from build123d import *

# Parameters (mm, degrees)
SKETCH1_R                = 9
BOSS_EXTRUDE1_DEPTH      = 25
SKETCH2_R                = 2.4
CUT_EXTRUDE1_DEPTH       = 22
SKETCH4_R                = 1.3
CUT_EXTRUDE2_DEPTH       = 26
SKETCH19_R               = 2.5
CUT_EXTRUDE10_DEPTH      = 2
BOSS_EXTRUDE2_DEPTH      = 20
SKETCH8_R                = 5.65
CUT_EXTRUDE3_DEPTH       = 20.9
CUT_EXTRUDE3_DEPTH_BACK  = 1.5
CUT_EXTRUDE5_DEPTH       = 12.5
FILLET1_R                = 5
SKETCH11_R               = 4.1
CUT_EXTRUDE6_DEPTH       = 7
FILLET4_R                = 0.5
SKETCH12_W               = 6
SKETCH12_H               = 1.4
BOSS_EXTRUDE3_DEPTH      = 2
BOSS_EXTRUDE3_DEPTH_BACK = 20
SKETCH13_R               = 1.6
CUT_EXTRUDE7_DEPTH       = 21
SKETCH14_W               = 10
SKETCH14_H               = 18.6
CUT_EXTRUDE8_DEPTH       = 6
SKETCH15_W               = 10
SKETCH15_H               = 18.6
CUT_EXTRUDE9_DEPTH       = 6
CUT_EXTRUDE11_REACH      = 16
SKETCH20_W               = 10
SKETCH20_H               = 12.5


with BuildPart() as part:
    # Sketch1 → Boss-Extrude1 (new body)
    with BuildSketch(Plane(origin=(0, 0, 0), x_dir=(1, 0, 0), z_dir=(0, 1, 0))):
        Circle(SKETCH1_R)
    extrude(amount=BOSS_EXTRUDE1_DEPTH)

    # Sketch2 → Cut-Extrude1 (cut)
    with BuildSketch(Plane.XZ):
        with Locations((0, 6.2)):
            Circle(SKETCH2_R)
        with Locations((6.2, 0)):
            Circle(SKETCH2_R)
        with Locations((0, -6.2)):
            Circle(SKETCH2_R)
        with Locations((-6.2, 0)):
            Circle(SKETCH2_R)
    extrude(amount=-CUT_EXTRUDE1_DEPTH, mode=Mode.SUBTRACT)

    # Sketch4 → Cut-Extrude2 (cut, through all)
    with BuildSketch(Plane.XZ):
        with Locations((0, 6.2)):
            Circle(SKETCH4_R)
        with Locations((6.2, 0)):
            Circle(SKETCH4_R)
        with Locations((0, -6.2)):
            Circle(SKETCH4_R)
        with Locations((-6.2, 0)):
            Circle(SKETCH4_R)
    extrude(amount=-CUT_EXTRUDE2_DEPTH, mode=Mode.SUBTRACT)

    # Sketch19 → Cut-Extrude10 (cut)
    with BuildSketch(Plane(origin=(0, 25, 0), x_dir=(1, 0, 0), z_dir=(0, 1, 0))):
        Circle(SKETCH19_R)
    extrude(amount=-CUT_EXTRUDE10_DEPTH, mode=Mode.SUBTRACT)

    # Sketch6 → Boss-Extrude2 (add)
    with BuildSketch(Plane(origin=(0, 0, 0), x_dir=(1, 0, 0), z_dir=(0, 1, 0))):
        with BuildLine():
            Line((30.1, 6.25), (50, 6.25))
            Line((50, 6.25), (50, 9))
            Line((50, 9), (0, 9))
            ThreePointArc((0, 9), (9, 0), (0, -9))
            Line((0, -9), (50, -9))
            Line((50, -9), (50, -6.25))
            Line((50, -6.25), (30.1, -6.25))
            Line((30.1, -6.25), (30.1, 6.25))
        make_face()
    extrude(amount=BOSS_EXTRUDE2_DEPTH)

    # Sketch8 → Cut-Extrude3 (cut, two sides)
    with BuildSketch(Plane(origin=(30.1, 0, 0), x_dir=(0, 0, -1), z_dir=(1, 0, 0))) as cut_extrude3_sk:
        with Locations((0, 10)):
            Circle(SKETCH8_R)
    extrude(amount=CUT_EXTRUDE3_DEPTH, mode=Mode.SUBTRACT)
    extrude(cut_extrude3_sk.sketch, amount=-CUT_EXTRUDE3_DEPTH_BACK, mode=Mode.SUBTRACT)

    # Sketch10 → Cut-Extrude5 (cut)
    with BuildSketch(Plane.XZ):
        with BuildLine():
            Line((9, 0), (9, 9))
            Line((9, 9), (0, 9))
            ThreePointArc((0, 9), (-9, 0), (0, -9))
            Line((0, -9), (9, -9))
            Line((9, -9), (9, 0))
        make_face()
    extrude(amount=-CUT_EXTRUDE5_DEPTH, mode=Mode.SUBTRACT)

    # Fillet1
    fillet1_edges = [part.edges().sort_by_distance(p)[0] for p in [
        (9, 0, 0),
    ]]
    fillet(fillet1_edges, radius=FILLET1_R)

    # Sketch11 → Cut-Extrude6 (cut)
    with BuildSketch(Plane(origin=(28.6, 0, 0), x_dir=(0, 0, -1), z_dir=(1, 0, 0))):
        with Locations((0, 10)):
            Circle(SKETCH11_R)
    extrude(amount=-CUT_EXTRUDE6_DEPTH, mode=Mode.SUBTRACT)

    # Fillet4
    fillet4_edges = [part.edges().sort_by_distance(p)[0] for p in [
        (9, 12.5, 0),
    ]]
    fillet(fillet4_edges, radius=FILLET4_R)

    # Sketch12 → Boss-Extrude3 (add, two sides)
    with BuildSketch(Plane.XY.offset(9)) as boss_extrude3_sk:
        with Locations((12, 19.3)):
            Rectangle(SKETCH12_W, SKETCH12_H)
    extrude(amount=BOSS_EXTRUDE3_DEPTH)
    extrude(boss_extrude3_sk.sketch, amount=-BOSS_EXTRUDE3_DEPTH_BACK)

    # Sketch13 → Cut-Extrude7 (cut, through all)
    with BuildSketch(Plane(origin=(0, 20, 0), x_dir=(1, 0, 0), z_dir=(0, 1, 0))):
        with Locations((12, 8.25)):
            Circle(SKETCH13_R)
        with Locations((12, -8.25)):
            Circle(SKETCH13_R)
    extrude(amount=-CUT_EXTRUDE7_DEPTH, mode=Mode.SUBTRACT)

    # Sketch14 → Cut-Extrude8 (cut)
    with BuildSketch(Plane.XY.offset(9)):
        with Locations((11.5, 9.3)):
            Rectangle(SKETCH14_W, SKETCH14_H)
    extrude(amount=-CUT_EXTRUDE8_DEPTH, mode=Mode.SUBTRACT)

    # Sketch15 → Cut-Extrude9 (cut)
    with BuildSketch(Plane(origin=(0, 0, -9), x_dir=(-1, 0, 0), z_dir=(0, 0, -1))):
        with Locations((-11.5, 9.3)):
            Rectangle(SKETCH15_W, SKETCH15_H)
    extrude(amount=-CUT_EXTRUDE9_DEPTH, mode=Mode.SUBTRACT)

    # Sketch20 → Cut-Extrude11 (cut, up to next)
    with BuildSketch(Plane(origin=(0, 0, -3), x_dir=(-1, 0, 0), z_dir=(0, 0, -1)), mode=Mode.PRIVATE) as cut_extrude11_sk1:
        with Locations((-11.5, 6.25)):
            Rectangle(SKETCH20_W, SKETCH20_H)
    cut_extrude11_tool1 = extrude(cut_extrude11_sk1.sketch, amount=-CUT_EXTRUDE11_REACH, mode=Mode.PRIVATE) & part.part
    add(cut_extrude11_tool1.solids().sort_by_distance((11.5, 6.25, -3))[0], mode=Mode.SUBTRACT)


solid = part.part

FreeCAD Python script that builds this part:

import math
import FreeCAD as App
import Part
import Sketcher
Q = App.Units.Quantity


def edges_at(feature, points):
    """Names of the edges that pass closest to the given points."""
    edges = feature.Shape.Edges
    near = lambda p: min(range(len(edges)), key=lambda i: edges[i].distToShape(Part.Vertex(*p))[0])
    return sorted({f"Edge{near(p) + 1}" for p in points})


def add_polygon(sketch, points):
    """Adds a closed chain of lines whose ends are joined by coincident constraints."""
    first, n = sketch.GeometryCount, len(points)
    for a, b in zip(points, points[1:] + points[:1]):
        sketch.addGeometry(Part.LineSegment(App.Vector(*a, 0), App.Vector(*b, 0)), False)
    for i in range(n):
        sketch.addConstraint(Sketcher.Constraint("Coincident", first + i, 2, first + (i + 1) % n, 1))

doc = App.newDocument("Part")
body = doc.addObject("PartDesign::Body", "Body")

sketch1 = body.newObject("Sketcher::SketchObject", "Sketch")
sketch1.AttachmentSupport = (doc.getObject("XZ_Plane"), [""])
sketch1.MapMode = "FlatFace"
sketch1.addGeometry(Part.Circle(App.Vector(0, 0, 0), App.Vector(0, 0, 1), 9), False)
sketch1.addConstraint(Sketcher.Constraint("Coincident", 0, 3, -1, 1))
sketch1.addConstraint(Sketcher.Constraint("Diameter", 0, Q("18 mm")))
pad1 = body.newObject("PartDesign::Pad", "Pad")
pad1.Profile = sketch1
pad1.Length = 25
pad1.Reversed = True

sketch2 = body.newObject("Sketcher::SketchObject", "Sketch001")
sketch2.AttachmentSupport = (doc.getObject("XZ_Plane"), [""])
sketch2.MapMode = "FlatFace"
sketch2.addGeometry(Part.Circle(App.Vector(0, 6.2, 0), App.Vector(0, 0, 1), 2.4), False)
sketch2.addGeometry(Part.Circle(App.Vector(6.2, 0, 0), App.Vector(0, 0, 1), 2.4), False)
sketch2.addGeometry(Part.Circle(App.Vector(0, -6.2, 0), App.Vector(0, 0, 1), 2.4), False)
sketch2.addGeometry(Part.Circle(App.Vector(-6.2, 0, 0), App.Vector(0, 0, 1), 2.4), False)
sketch2.addConstraint(Sketcher.Constraint("Equal", 0, 1))
sketch2.addConstraint(Sketcher.Constraint("Equal", 1, 2))
sketch2.addConstraint(Sketcher.Constraint("Equal", 2, 3))
sketch2.addConstraint(Sketcher.Constraint("Symmetric", 0, 3, 2, 3, -1, 1))
sketch2.addConstraint(Sketcher.Constraint("Symmetric", 1, 3, 3, 3, -1, 1))
sketch2.addConstraint(Sketcher.Constraint("PointOnObject", 0, 3, -2))
sketch2.addConstraint(Sketcher.Constraint("PointOnObject", 1, 3, -1))
sketch2.addConstraint(Sketcher.Constraint("Diameter", 0, Q("4.8 mm")))
sketch2.addConstraint(Sketcher.Constraint("DistanceY", -1, 1, 0, 3, Q("6.2 mm")))
sketch2.addConstraint(Sketcher.Constraint("DistanceX", -1, 1, 1, 3, Q("6.2 mm")))
pocket1 = body.newObject("PartDesign::Pocket", "Pocket")
pocket1.Profile = sketch2
pocket1.Length = 22

sketch3 = body.newObject("Sketcher::SketchObject", "Sketch002")
sketch3.AttachmentSupport = (doc.getObject("XZ_Plane"), [""])
sketch3.MapMode = "FlatFace"
sketch3.addGeometry(Part.Circle(App.Vector(0, 6.2, 0), App.Vector(0, 0, 1), 1.3), False)
sketch3.addGeometry(Part.Circle(App.Vector(6.2, 0, 0), App.Vector(0, 0, 1), 1.3), False)
sketch3.addGeometry(Part.Circle(App.Vector(0, -6.2, 0), App.Vector(0, 0, 1), 1.3), False)
sketch3.addGeometry(Part.Circle(App.Vector(-6.2, 0, 0), App.Vector(0, 0, 1), 1.3), False)
sketch3.addConstraint(Sketcher.Constraint("Equal", 0, 1))
sketch3.addConstraint(Sketcher.Constraint("Equal", 1, 2))
sketch3.addConstraint(Sketcher.Constraint("Equal", 2, 3))
sketch3.addConstraint(Sketcher.Constraint("Symmetric", 0, 3, 2, 3, -1, 1))
sketch3.addConstraint(Sketcher.Constraint("Symmetric", 1, 3, 3, 3, -1, 1))
sketch3.addConstraint(Sketcher.Constraint("PointOnObject", 0, 3, -2))
sketch3.addConstraint(Sketcher.Constraint("PointOnObject", 1, 3, -1))
sketch3.addConstraint(Sketcher.Constraint("Diameter", 0, Q("2.6 mm")))
sketch3.addConstraint(Sketcher.Constraint("DistanceY", -1, 1, 0, 3, Q("6.2 mm")))
sketch3.addConstraint(Sketcher.Constraint("DistanceX", -1, 1, 1, 3, Q("6.2 mm")))
pocket2 = body.newObject("PartDesign::Pocket", "Pocket001")
pocket2.Profile = sketch3
pocket2.Type = "ThroughAll"

sketch4 = body.newObject("Sketcher::SketchObject", "Sketch003")
sketch4.AttachmentSupport = (doc.getObject("XZ_Plane"), [""])
sketch4.MapMode = "FlatFace"
sketch4.AttachmentOffset = App.Placement(App.Vector(0, 0, -25), App.Rotation())
sketch4.addGeometry(Part.Circle(App.Vector(0, 0, 0), App.Vector(0, 0, 1), 2.5), False)
sketch4.addConstraint(Sketcher.Constraint("Coincident", 0, 3, -1, 1))
sketch4.addConstraint(Sketcher.Constraint("Diameter", 0, Q("5 mm")))
pocket3 = body.newObject("PartDesign::Pocket", "Pocket002")
pocket3.Profile = sketch4
pocket3.Length = 2
pocket3.Reversed = True

sketch5 = body.newObject("Sketcher::SketchObject", "Sketch004")
sketch5.AttachmentSupport = (doc.getObject("XZ_Plane"), [""])
sketch5.MapMode = "FlatFace"
sketch5.addGeometry(Part.LineSegment(App.Vector(30.1, -6.25, 0), App.Vector(50, -6.25, 0)), False)
sketch5.addGeometry(Part.LineSegment(App.Vector(50, -6.25, 0), App.Vector(50, -9, 0)), False)
sketch5.addGeometry(Part.LineSegment(App.Vector(50, -9, 0), App.Vector(0, -9, 0)), False)
sketch5.addGeometry(Part.ArcOfCircle(Part.Circle(App.Vector(0, 0, 0), App.Vector(0, 0, 1), 9), math.radians(-90), math.radians(90)), False)
sketch5.addGeometry(Part.LineSegment(App.Vector(0, 9, 0), App.Vector(50, 9, 0)), False)
sketch5.addGeometry(Part.LineSegment(App.Vector(50, 9, 0), App.Vector(50, 6.25, 0)), False)
sketch5.addGeometry(Part.LineSegment(App.Vector(50, 6.25, 0), App.Vector(30.1, 6.25, 0)), False)
sketch5.addGeometry(Part.LineSegment(App.Vector(30.1, 6.25, 0), App.Vector(30.1, -6.25, 0)), False)
sketch5.addConstraint(Sketcher.Constraint("Coincident", 0, 2, 1, 1))
sketch5.addConstraint(Sketcher.Constraint("Coincident", 1, 2, 2, 1))
sketch5.addConstraint(Sketcher.Constraint("Tangent", 2, 2, 3, 1))
sketch5.addConstraint(Sketcher.Constraint("Tangent", 3, 2, 4, 1))
sketch5.addConstraint(Sketcher.Constraint("Coincident", 4, 2, 5, 1))
sketch5.addConstraint(Sketcher.Constraint("Coincident", 5, 2, 6, 1))
sketch5.addConstraint(Sketcher.Constraint("Coincident", 6, 2, 7, 1))
sketch5.addConstraint(Sketcher.Constraint("Coincident", 7, 2, 0, 1))
sketch5.addConstraint(Sketcher.Constraint("Horizontal", 0))
sketch5.addConstraint(Sketcher.Constraint("Vertical", 1))
sketch5.addConstraint(Sketcher.Constraint("Horizontal", 2))
sketch5.addConstraint(Sketcher.Constraint("Horizontal", 4))
sketch5.addConstraint(Sketcher.Constraint("Vertical", 5))
sketch5.addConstraint(Sketcher.Constraint("Horizontal", 6))
sketch5.addConstraint(Sketcher.Constraint("Vertical", 7))
sketch5.addConstraint(Sketcher.Constraint("Coincident", 3, 3, -1, 1))
sketch5.addConstraint(Sketcher.Constraint("Symmetric", 0, 2, 5, 2, -1))
sketch5.addConstraint(Sketcher.Constraint("Radius", 3, Q("9 mm")))
sketch5.addConstraint(Sketcher.Constraint("DistanceX", 2, 2, 2, 1, Q("50 mm")))
sketch5.addConstraint(Sketcher.Constraint("DistanceX", 0, 1, 0, 2, Q("19.9 mm")))
sketch5.addConstraint(Sketcher.Constraint("DistanceY", 7, 2, 7, 1, Q("12.5 mm")))
pad2 = body.newObject("PartDesign::Pad", "Pad001")
pad2.Profile = sketch5
pad2.Length = 20
pad2.Reversed = True

sketch6 = body.newObject("Sketcher::SketchObject", "Sketch005")
sketch6.AttachmentSupport = (doc.getObject("YZ_Plane"), [""])
sketch6.MapMode = "FlatFace"
sketch6.AttachmentOffset = App.Placement(App.Vector(0, 0, 30.1), App.Rotation())
sketch6.addGeometry(Part.Circle(App.Vector(10, 0, 0), App.Vector(0, 0, 1), 5.65), False)
sketch6.addConstraint(Sketcher.Constraint("PointOnObject", 0, 3, -1))
sketch6.addConstraint(Sketcher.Constraint("Diameter", 0, Q("11.3 mm")))
sketch6.addConstraint(Sketcher.Constraint("DistanceX", -1, 1, 0, 3, Q("10 mm")))
pocket4 = body.newObject("PartDesign::Pocket", "Pocket003")
pocket4.Profile = sketch6
pocket4.Type = "TwoLengths"
pocket4.Length = 20.9
pocket4.Length2 = 1.5
pocket4.Reversed = True

sketch7 = body.newObject("Sketcher::SketchObject", "Sketch006")
sketch7.AttachmentSupport = (doc.getObject("XZ_Plane"), [""])
sketch7.MapMode = "FlatFace"
sketch7.addGeometry(Part.LineSegment(App.Vector(9, 9, 0), App.Vector(0, 9, 0)), False)
sketch7.addGeometry(Part.ArcOfCircle(Part.Circle(App.Vector(0, 0, 0), App.Vector(0, 0, 1), 9), math.radians(90), math.radians(270)), False)
sketch7.addGeometry(Part.LineSegment(App.Vector(0, -9, 0), App.Vector(9, -9, 0)), False)
sketch7.addGeometry(Part.LineSegment(App.Vector(9, -9, 0), App.Vector(9, 9, 0)), False)
sketch7.addConstraint(Sketcher.Constraint("Tangent", 0, 2, 1, 1))
sketch7.addConstraint(Sketcher.Constraint("Tangent", 1, 2, 2, 1))
sketch7.addConstraint(Sketcher.Constraint("Coincident", 2, 2, 3, 1))
sketch7.addConstraint(Sketcher.Constraint("Coincident", 3, 2, 0, 1))
sketch7.addConstraint(Sketcher.Constraint("Horizontal", 0))
sketch7.addConstraint(Sketcher.Constraint("Horizontal", 2))
sketch7.addConstraint(Sketcher.Constraint("Vertical", 3))
sketch7.addConstraint(Sketcher.Constraint("Coincident", 1, 3, -1, 1))
sketch7.addConstraint(Sketcher.Constraint("Radius", 1, Q("9 mm")))
sketch7.addConstraint(Sketcher.Constraint("DistanceX", 0, 2, 0, 1, Q("9 mm")))
pocket5 = body.newObject("PartDesign::Pocket", "Pocket004")
pocket5.Profile = sketch7
pocket5.Length = 12.5
doc.recompute()

fillet = body.newObject("PartDesign::Fillet", "Fillet")
fillet.Base = (pocket5, edges_at(pocket5, [(9, 0, 0)]))
fillet.Radius = 5

sketch8 = body.newObject("Sketcher::SketchObject", "Sketch007")
sketch8.AttachmentSupport = (doc.getObject("YZ_Plane"), [""])
sketch8.MapMode = "FlatFace"
sketch8.AttachmentOffset = App.Placement(App.Vector(0, 0, 28.6), App.Rotation())
sketch8.addGeometry(Part.Circle(App.Vector(10, 0, 0), App.Vector(0, 0, 1), 4.1), False)
sketch8.addConstraint(Sketcher.Constraint("PointOnObject", 0, 3, -1))
sketch8.addConstraint(Sketcher.Constraint("Diameter", 0, Q("8.2 mm")))
sketch8.addConstraint(Sketcher.Constraint("DistanceX", -1, 1, 0, 3, Q("10 mm")))
pocket6 = body.newObject("PartDesign::Pocket", "Pocket005")
pocket6.Profile = sketch8
pocket6.Length = 7
doc.recompute()

fillet2 = body.newObject("PartDesign::Fillet", "Fillet001")
fillet2.Base = (pocket6, edges_at(pocket6, [(9, 12.5, 0)]))
fillet2.Radius = 0.5

sketch9 = body.newObject("Sketcher::SketchObject", "Sketch008")
sketch9.AttachmentSupport = (doc.getObject("XY_Plane"), [""])
sketch9.MapMode = "FlatFace"
sketch9.AttachmentOffset = App.Placement(App.Vector(0, 0, 9), App.Rotation())
add_polygon(sketch9, [(9, 20), (9, 18.6), (15, 18.6), (15, 20)])
sketch9.addConstraint(Sketcher.Constraint("Vertical", 0))
sketch9.addConstraint(Sketcher.Constraint("Horizontal", 1))
sketch9.addConstraint(Sketcher.Constraint("Vertical", 2))
sketch9.addConstraint(Sketcher.Constraint("Horizontal", 3))
sketch9.addConstraint(Sketcher.Constraint("DistanceX", 1, 1, 1, 2, Q("6 mm")))
sketch9.addConstraint(Sketcher.Constraint("DistanceY", 0, 2, 0, 1, Q("1.4 mm")))
sketch9.addConstraint(Sketcher.Constraint("DistanceX", -1, 1, 0, 2, Q("9 mm")))
sketch9.addConstraint(Sketcher.Constraint("DistanceY", -1, 1, 2, 2, Q("20 mm")))
pad3 = body.newObject("PartDesign::Pad", "Pad002")
pad3.Profile = sketch9
pad3.Type = "TwoLengths"
pad3.Length = 2
pad3.Length2 = 20

sketch10 = body.newObject("Sketcher::SketchObject", "Sketch009")
sketch10.AttachmentSupport = (doc.getObject("XZ_Plane"), [""])
sketch10.MapMode = "FlatFace"
sketch10.AttachmentOffset = App.Placement(App.Vector(0, 0, -20), App.Rotation())
sketch10.addGeometry(Part.Circle(App.Vector(12, -8.25, 0), App.Vector(0, 0, 1), 1.6), False)
sketch10.addGeometry(Part.Circle(App.Vector(12, 8.25, 0), App.Vector(0, 0, 1), 1.6), False)
sketch10.addConstraint(Sketcher.Constraint("Equal", 0, 1))
sketch10.addConstraint(Sketcher.Constraint("Symmetric", 0, 3, 1, 3, -1))
sketch10.addConstraint(Sketcher.Constraint("Diameter", 0, Q("3.2 mm")))
sketch10.addConstraint(Sketcher.Constraint("DistanceX", -1, 1, 0, 3, Q("12 mm")))
sketch10.addConstraint(Sketcher.Constraint("DistanceY", 0, 3, 1, 3, Q("16.5 mm")))
pocket7 = body.newObject("PartDesign::Pocket", "Pocket006")
pocket7.Profile = sketch10
pocket7.Type = "ThroughAll"
pocket7.Reversed = True

sketch11 = body.newObject("Sketcher::SketchObject", "Sketch010")
sketch11.AttachmentSupport = (doc.getObject("XY_Plane"), [""])
sketch11.MapMode = "FlatFace"
sketch11.AttachmentOffset = App.Placement(App.Vector(0, 0, 9), App.Rotation())
add_polygon(sketch11, [(6.5, 18.6), (6.5, 0), (16.5, 0), (16.5, 18.6)])
sketch11.addConstraint(Sketcher.Constraint("Vertical", 0))
sketch11.addConstraint(Sketcher.Constraint("Horizontal", 1))
sketch11.addConstraint(Sketcher.Constraint("Vertical", 2))
sketch11.addConstraint(Sketcher.Constraint("Horizontal", 3))
sketch11.addConstraint(Sketcher.Constraint("PointOnObject", 0, 2, -1))
sketch11.addConstraint(Sketcher.Constraint("DistanceX", 1, 1, 1, 2, Q("10 mm")))
sketch11.addConstraint(Sketcher.Constraint("DistanceY", 0, 2, 0, 1, Q("18.6 mm")))
sketch11.addConstraint(Sketcher.Constraint("DistanceX", -1, 1, 0, 2, Q("6.5 mm")))
pocket8 = body.newObject("PartDesign::Pocket", "Pocket007")
pocket8.Profile = sketch11
pocket8.Length = 6

sketch12 = body.newObject("Sketcher::SketchObject", "Sketch011")
sketch12.AttachmentSupport = (doc.getObject("XY_Plane"), [""])
sketch12.MapMode = "FlatFace"
sketch12.AttachmentOffset = App.Placement(App.Vector(0, 0, -9), App.Rotation())
add_polygon(sketch12, [(16.5, 18.6), (16.5, 0), (6.5, 0), (6.5, 18.6)])
sketch12.addConstraint(Sketcher.Constraint("Vertical", 0))
sketch12.addConstraint(Sketcher.Constraint("Horizontal", 1))
sketch12.addConstraint(Sketcher.Constraint("Vertical", 2))
sketch12.addConstraint(Sketcher.Constraint("Horizontal", 3))
sketch12.addConstraint(Sketcher.Constraint("PointOnObject", 0, 2, -1))
sketch12.addConstraint(Sketcher.Constraint("DistanceX", 1, 2, 1, 1, Q("10 mm")))
sketch12.addConstraint(Sketcher.Constraint("DistanceY", 0, 2, 0, 1, Q("18.6 mm")))
sketch12.addConstraint(Sketcher.Constraint("DistanceX", -1, 1, 0, 2, Q("16.5 mm")))
pocket9 = body.newObject("PartDesign::Pocket", "Pocket008")
pocket9.Profile = sketch12
pocket9.Length = 6
pocket9.Reversed = True

sketch13 = body.newObject("Sketcher::SketchObject", "Sketch012")
sketch13.AttachmentSupport = (doc.getObject("XY_Plane"), [""])
sketch13.MapMode = "FlatFace"
sketch13.AttachmentOffset = App.Placement(App.Vector(0, 0, -3), App.Rotation())
add_polygon(sketch13, [(16.5, 12.5), (16.5, 0), (6.5, 0), (6.5, 12.5)])
sketch13.addConstraint(Sketcher.Constraint("Vertical", 0))
sketch13.addConstraint(Sketcher.Constraint("Horizontal", 1))
sketch13.addConstraint(Sketcher.Constraint("Vertical", 2))
sketch13.addConstraint(Sketcher.Constraint("Horizontal", 3))
sketch13.addConstraint(Sketcher.Constraint("PointOnObject", 0, 2, -1))
sketch13.addConstraint(Sketcher.Constraint("DistanceX", 1, 2, 1, 1, Q("10 mm")))
sketch13.addConstraint(Sketcher.Constraint("DistanceY", 0, 2, 0, 1, Q("12.5 mm")))
sketch13.addConstraint(Sketcher.Constraint("DistanceX", -1, 1, 0, 2, Q("16.5 mm")))
pocket10 = body.newObject("PartDesign::Pocket", "Pocket009")
pocket10.Profile = sketch13
pocket10.Type = "UpToFirst"
pocket10.Reversed = True

doc.recompute()
